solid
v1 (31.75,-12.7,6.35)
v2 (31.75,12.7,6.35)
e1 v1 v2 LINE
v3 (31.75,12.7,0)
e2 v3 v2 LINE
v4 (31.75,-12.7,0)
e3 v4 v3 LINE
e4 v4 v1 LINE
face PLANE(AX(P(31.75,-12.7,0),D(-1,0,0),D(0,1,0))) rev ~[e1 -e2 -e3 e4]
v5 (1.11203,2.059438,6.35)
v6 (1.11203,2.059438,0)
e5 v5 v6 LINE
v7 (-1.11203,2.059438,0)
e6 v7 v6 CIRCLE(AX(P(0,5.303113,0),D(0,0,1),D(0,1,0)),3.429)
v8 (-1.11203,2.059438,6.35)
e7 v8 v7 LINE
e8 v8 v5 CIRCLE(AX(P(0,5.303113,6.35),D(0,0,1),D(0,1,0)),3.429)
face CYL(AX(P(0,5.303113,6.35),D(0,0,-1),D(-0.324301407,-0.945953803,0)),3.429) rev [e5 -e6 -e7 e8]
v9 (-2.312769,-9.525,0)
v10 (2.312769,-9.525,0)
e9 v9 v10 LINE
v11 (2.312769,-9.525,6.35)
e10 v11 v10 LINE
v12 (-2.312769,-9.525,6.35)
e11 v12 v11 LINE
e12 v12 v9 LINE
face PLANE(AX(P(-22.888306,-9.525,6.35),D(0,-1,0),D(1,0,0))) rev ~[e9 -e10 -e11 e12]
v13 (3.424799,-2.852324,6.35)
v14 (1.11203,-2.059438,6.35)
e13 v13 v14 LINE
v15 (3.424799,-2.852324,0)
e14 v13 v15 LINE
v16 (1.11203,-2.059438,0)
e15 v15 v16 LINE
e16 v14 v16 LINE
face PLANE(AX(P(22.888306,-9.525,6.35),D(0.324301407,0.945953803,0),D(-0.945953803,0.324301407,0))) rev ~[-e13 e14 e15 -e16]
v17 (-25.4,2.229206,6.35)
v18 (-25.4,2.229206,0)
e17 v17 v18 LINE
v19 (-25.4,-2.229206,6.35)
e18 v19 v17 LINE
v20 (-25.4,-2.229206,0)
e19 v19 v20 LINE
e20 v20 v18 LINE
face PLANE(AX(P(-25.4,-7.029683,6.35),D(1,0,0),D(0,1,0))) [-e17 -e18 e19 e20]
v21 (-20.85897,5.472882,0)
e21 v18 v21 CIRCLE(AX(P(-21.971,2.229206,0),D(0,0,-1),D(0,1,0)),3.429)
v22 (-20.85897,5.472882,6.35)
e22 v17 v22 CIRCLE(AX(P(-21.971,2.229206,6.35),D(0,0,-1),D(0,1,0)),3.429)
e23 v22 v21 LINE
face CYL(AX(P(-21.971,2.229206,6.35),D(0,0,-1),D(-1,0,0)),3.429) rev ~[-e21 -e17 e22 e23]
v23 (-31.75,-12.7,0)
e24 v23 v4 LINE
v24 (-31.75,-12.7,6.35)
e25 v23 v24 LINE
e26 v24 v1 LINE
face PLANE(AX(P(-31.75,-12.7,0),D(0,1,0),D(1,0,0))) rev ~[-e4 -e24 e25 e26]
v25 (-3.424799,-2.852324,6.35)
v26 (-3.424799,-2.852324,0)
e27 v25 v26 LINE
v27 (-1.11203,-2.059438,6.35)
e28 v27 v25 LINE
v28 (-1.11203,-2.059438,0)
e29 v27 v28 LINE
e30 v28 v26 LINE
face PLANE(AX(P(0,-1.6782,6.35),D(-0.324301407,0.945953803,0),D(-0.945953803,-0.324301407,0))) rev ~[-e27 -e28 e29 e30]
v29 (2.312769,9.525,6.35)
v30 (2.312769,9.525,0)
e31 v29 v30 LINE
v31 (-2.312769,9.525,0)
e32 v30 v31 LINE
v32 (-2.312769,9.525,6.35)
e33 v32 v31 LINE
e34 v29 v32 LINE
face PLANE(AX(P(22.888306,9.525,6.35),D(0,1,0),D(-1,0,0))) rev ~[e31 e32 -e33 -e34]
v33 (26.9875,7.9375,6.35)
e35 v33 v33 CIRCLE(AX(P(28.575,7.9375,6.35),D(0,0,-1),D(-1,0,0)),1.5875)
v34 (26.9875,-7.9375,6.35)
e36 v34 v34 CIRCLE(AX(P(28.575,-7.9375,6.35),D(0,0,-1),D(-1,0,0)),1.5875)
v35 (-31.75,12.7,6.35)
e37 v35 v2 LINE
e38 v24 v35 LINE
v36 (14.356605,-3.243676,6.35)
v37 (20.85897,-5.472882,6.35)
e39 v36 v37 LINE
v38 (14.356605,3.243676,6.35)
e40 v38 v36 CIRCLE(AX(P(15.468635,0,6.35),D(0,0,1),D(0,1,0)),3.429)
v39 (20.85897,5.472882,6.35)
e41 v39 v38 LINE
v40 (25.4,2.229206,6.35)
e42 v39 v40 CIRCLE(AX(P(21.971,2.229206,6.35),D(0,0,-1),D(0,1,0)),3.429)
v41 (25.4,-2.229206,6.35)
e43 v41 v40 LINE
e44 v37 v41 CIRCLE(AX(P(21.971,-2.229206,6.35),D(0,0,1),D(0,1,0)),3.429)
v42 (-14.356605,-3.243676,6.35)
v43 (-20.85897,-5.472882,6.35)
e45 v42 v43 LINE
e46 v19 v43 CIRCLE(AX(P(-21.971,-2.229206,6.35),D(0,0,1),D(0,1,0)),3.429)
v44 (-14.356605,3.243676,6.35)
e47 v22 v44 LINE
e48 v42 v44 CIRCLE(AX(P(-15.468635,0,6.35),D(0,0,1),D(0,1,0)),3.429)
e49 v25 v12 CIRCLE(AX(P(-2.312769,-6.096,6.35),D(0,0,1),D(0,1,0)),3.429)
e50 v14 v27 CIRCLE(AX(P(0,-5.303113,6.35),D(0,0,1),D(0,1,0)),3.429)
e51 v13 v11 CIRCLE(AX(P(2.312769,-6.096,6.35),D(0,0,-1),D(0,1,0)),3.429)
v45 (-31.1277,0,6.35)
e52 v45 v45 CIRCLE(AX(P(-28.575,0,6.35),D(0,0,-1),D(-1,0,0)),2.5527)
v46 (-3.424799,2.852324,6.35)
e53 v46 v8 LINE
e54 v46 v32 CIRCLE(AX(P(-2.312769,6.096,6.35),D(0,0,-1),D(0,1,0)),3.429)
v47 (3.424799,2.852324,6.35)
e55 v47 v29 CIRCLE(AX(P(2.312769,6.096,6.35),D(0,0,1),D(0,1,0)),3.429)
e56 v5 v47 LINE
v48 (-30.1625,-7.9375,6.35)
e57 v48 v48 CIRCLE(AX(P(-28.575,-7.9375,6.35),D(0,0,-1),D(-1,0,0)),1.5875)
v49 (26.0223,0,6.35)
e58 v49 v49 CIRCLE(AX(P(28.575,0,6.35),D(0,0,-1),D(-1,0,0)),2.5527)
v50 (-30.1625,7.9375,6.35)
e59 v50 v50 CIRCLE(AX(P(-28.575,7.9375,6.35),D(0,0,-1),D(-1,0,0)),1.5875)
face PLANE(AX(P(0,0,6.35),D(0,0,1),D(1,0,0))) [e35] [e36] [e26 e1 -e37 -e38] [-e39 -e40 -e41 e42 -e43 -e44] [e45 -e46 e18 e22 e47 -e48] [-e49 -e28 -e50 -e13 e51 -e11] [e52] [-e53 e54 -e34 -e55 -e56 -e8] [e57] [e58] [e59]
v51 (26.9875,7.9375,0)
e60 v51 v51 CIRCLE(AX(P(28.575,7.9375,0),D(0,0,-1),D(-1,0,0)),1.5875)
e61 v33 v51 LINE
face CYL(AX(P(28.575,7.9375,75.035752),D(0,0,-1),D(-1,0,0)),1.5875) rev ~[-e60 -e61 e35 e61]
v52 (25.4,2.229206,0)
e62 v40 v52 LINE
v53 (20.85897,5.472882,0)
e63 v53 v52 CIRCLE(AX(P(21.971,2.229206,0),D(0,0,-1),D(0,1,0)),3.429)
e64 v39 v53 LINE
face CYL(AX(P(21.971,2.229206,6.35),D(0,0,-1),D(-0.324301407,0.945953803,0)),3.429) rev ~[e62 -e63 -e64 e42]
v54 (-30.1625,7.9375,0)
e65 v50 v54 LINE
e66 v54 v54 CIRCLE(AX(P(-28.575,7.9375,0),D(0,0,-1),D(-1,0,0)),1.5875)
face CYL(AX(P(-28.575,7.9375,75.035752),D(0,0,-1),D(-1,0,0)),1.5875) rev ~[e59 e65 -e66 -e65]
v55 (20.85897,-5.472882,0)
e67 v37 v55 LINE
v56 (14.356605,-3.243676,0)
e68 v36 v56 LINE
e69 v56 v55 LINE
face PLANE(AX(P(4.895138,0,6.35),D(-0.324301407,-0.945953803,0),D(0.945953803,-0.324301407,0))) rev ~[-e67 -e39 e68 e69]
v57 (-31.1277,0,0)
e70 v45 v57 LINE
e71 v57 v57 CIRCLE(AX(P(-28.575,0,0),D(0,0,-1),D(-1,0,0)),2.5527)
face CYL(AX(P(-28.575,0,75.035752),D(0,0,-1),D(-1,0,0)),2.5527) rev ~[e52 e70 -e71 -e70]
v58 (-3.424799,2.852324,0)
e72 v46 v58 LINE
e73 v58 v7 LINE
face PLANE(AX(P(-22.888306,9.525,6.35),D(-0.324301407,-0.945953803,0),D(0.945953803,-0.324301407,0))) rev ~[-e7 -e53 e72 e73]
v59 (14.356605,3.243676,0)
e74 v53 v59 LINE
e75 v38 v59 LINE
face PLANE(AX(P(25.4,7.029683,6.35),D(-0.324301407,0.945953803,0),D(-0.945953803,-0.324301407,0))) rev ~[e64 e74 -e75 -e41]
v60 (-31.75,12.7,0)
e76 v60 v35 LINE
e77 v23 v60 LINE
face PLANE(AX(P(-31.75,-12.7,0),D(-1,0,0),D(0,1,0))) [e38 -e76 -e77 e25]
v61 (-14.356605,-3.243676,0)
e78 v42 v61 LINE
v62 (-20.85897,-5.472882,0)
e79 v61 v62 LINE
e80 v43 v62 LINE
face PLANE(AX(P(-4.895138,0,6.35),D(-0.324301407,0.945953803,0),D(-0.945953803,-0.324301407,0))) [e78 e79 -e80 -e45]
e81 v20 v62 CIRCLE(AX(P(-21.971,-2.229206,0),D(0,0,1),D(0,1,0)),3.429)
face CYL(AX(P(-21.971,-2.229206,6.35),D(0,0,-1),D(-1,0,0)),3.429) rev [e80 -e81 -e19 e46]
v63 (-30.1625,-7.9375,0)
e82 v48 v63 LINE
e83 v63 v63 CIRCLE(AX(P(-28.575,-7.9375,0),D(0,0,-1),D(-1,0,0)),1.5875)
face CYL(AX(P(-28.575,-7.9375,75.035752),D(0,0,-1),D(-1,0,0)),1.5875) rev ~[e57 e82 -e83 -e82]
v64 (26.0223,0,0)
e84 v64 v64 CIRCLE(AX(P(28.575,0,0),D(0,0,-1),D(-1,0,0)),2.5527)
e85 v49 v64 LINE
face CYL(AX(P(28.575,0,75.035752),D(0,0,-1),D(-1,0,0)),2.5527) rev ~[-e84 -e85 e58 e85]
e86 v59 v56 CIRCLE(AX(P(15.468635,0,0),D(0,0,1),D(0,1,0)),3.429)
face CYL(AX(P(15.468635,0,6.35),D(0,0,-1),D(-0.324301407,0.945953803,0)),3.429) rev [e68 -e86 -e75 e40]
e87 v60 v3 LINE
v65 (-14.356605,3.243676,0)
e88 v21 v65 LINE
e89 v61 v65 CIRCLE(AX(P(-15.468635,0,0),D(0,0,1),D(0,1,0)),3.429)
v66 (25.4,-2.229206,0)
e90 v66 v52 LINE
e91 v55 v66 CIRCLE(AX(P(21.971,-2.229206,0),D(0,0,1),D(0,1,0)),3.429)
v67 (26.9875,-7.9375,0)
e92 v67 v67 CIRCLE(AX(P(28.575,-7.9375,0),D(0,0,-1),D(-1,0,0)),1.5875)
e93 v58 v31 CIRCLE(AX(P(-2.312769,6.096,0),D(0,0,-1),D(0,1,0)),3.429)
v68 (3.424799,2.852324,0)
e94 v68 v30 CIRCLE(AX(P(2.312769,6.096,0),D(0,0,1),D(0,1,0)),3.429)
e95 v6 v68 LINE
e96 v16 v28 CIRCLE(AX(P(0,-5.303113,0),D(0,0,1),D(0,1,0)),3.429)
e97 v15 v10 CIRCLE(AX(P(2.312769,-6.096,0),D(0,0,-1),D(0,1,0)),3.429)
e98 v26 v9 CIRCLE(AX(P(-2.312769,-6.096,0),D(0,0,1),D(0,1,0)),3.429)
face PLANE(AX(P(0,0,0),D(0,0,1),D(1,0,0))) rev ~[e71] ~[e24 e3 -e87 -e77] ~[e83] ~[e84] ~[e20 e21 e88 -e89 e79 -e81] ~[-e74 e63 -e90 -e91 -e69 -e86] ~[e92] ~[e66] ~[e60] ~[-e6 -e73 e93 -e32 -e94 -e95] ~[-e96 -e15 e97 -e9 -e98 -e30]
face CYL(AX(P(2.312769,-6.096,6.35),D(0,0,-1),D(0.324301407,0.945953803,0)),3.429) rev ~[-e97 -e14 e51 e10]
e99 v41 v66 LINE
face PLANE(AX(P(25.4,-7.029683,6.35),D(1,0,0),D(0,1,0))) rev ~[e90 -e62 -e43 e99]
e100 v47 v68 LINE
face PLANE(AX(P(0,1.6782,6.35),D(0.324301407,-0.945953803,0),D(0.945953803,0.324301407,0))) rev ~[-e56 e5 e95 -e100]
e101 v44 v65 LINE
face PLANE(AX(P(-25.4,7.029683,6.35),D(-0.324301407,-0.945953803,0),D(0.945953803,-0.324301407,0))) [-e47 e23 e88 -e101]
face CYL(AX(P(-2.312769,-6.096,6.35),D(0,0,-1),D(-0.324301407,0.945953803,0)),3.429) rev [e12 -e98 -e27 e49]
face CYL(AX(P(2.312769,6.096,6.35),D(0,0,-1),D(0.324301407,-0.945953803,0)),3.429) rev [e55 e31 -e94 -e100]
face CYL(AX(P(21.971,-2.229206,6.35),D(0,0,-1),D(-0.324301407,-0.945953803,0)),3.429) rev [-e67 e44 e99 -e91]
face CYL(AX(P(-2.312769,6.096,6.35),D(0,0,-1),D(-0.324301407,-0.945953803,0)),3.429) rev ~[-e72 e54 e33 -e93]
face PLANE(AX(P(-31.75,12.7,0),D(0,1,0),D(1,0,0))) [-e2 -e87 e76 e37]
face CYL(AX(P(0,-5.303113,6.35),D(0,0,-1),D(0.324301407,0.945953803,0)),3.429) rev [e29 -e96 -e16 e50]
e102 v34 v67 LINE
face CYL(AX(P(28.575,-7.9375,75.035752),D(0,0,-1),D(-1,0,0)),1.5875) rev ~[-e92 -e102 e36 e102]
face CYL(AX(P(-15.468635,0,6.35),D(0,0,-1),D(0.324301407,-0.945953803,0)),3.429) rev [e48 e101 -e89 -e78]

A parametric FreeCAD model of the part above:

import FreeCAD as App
import Part
import Sketcher
from FreeCAD import Vector
Q = App.Units.Quantity


def edges_at(feature, points):
    """Names of the edges that pass closest to the given points."""
    edges = feature.Shape.Edges
    near = lambda p: min(range(len(edges)), key=lambda i: edges[i].distToShape(Part.Vertex(*p))[0])
    return sorted({f"Edge{near(p) + 1}" for p in points})

doc = App.newDocument("Part")
body = doc.addObject("PartDesign::Body", "Body")

# Sketch on XY plane
sketch1 = doc.addObject("Sketcher::SketchObject", "Sketch")
body.addObject(sketch1)
sketch1.AttachmentSupport = (doc.XY_Plane, [""])
sketch1.MapMode = "FlatFace"
sketch1.addGeometry(Part.LineSegment(Vector(-32, 13, 0), Vector(-32, -13, 0)), False)
sketch1.addGeometry(Part.LineSegment(Vector(-32, -13, 0), Vector(32, -13, 0)), False)
sketch1.addGeometry(Part.LineSegment(Vector(32, -13, 0), Vector(32, 13, 0)), False)
sketch1.addGeometry(Part.LineSegment(Vector(32, 13, 0), Vector(-32, 13, 0)), False)
sketch1.addConstraint(Sketcher.Constraint("Coincident", 0, 2, 1, 1))
sketch1.addConstraint(Sketcher.Constraint("Coincident", 1, 2, 2, 1))
sketch1.addConstraint(Sketcher.Constraint("Coincident", 2, 2, 3, 1))
sketch1.addConstraint(Sketcher.Constraint("Coincident", 3, 2, 0, 1))
sketch1.addConstraint(Sketcher.Constraint("Vertical", 0))
sketch1.addConstraint(Sketcher.Constraint("Horizontal", 1))
sketch1.addConstraint(Sketcher.Constraint("Vertical", 2))
sketch1.addConstraint(Sketcher.Constraint("Horizontal", 3))
sketch1.addConstraint(Sketcher.Constraint("Symmetric", 0, 2, 2, 2, -1, 1))
sketch1.addConstraint(Sketcher.Constraint("DistanceY", 0, 2, 0, 1, Q("1 in")))
sketch1.addConstraint(Sketcher.Constraint("DistanceX", 1, 1, 1, 2, Q("2.5 in")))
pad1 = doc.addObject("PartDesign::Pad", "Pad")
body.addObject(pad1)
pad1.Profile = sketch1
pad1.Length = Q("0.25 in")

# Sketch on XY plane
sketch2 = doc.addObject("Sketcher::SketchObject", "Sketch001")
body.addObject(sketch2)
sketch2.AttachmentSupport = (doc.XY_Plane, [""])
sketch2.MapMode = "FlatFace"
sketch2.AttachmentOffset = App.Placement(Vector(0, 0, 0.25 * 25.4), App.Rotation())
sketch2.addGeometry(Part.Circle(Vector(-28.6, 0, 0), Vector(0, 0, 1), 2.6), False)
sketch2.addGeometry(Part.Circle(Vector(28.6, 0, 0), Vector(0, 0, 1), 2.6), False)
sketch2.addConstraint(Sketcher.Constraint("Equal", 0, 1))
sketch2.addConstraint(Sketcher.Constraint("Symmetric", 0, 3, 1, 3, -1, 1))
sketch2.addConstraint(Sketcher.Constraint("PointOnObject", 0, 3, -1))
sketch2.addConstraint(Sketcher.Constraint("Diameter", 0, Q("0.201 in")))
sketch2.addConstraint(Sketcher.Constraint("DistanceX", 0, 3, 1, 3, Q("2.25 in")))
doc.recompute()
hole = doc.addObject("PartDesign::Hole", "Hole")
body.addObject(hole)
hole.Profile = sketch2
hole.ThreadType = "None"
hole.Diameter = Q("0.201 in")
hole.DepthType = "ThroughAll"

# Sketch on XY plane
sketch3 = doc.addObject("Sketcher::SketchObject", "Sketch002")
body.addObject(sketch3)
sketch3.AttachmentSupport = (doc.XY_Plane, [""])
sketch3.MapMode = "FlatFace"
sketch3.AttachmentOffset = App.Placement(Vector(0, 0, 0.25 * 25.4), App.Rotation())
sketch3.addGeometry(Part.Circle(Vector(-28.6, 7.9, 0), Vector(0, 0, 1), 1.6), False)
sketch3.addGeometry(Part.Circle(Vector(-28.6, -7.9, 0), Vector(0, 0, 1), 1.6), False)
sketch3.addGeometry(Part.Circle(Vector(28.6, 7.9, 0), Vector(0, 0, 1), 1.6), False)
sketch3.addGeometry(Part.Circle(Vector(28.6, -7.9, 0), Vector(0, 0, 1), 1.6), False)
sketch3.addConstraint(Sketcher.Constraint("Equal", 0, 1))
sketch3.addConstraint(Sketcher.Constraint("Equal", 1, 2))
sketch3.addConstraint(Sketcher.Constraint("Equal", 2, 3))
sketch3.addConstraint(Sketcher.Constraint("Symmetric", 1, 3, 2, 3, -1, 1))
sketch3.addConstraint(Sketcher.Constraint("Symmetric", 0, 3, 3, 3, -1, 1))
sketch3.addConstraint(Sketcher.Constraint("Symmetric", 0, 3, 2, 3, -2))
sketch3.addConstraint(Sketcher.Constraint("Diameter", 0, Q("0.125 in")))
sketch3.addConstraint(Sketcher.Constraint("DistanceX", 0, 3, 2, 3, Q("2.25 in")))
sketch3.addConstraint(Sketcher.Constraint("DistanceY", -1, 1, 0, 3, Q("0.3125 in")))
doc.recompute()
hole2 = doc.addObject("PartDesign::Hole", "Hole001")
body.addObject(hole2)
hole2.Profile = sketch3
hole2.ThreadType = "None"
hole2.Diameter = Q("0.125 in")
hole2.DepthType = "ThroughAll"

# Sketch on XY plane
sketch4 = doc.addObject("Sketcher::SketchObject", "Sketch003")
body.addObject(sketch4)
sketch4.AttachmentSupport = (doc.XY_Plane, [""])
sketch4.MapMode = "FlatFace"
sketch4.AttachmentOffset = App.Placement(Vector(0, 0, 0.25 * 25.4), App.Rotation())
sketch4.addGeometry(Part.LineSegment(Vector(-5, 0, 0), Vector(-25, 7, 0)), False)
sketch4.addGeometry(Part.LineSegment(Vector(-25, 7, 0), Vector(-25, -7, 0)), False)
sketch4.addGeometry(Part.LineSegment(Vector(-25, -7, 0), Vector(-5, 0, 0)), False)
sketch4.addGeometry(Part.LineSegment(Vector(-23, 10, 0), Vector(0, 2, 0)), False)
sketch4.addGeometry(Part.LineSegment(Vector(0, 2, 0), Vector(23, 10, 0)), False)
sketch4.addGeometry(Part.LineSegment(Vector(23, 10, 0), Vector(-23, 10, 0)), False)
sketch4.addGeometry(Part.LineSegment(Vector(25, 7, 0), Vector(5, 0, 0)), False)
sketch4.addGeometry(Part.LineSegment(Vector(5, 0, 0), Vector(25, -7, 0)), False)
sketch4.addGeometry(Part.LineSegment(Vector(25, -7, 0), Vector(25, 7, 0)), False)
sketch4.addGeometry(Part.LineSegment(Vector(23, -10, 0), Vector(0, -2, 0)), False)
sketch4.addGeometry(Part.LineSegment(Vector(0, -2, 0), Vector(-23, -10, 0)), False)
sketch4.addGeometry(Part.LineSegment(Vector(-23, -10, 0), Vector(23, -10, 0)), False)
sketch4.addConstraint(Sketcher.Constraint("Coincident", 0, 2, 1, 1))
sketch4.addConstraint(Sketcher.Constraint("Coincident", 1, 2, 2, 1))
sketch4.addConstraint(Sketcher.Constraint("Coincident", 2, 2, 0, 1))
sketch4.addConstraint(Sketcher.Constraint("Coincident", 3, 2, 4, 1))
sketch4.addConstraint(Sketcher.Constraint("Coincident", 4, 2, 5, 1))
sketch4.addConstraint(Sketcher.Constraint("Coincident", 5, 2, 3, 1))
sketch4.addConstraint(Sketcher.Constraint("Coincident", 6, 2, 7, 1))
sketch4.addConstraint(Sketcher.Constraint("Coincident", 7, 2, 8, 1))
sketch4.addConstraint(Sketcher.Constraint("Coincident", 8, 2, 6, 1))
sketch4.addConstraint(Sketcher.Constraint("Coincident", 9, 2, 10, 1))
sketch4.addConstraint(Sketcher.Constraint("Coincident", 10, 2, 11, 1))
sketch4.addConstraint(Sketcher.Constraint("Coincident", 11, 2, 9, 1))
sketch4.addConstraint(Sketcher.Constraint("Vertical", 1))
sketch4.addConstraint(Sketcher.Constraint("Horizontal", 5))
sketch4.addConstraint(Sketcher.Constraint("Vertical", 8))
sketch4.addConstraint(Sketcher.Constraint("Horizontal", 11))
sketch4.addConstraint(Sketcher.Constraint("Symmetric", 2, 2, 6, 2, -1, 1))
sketch4.addConstraint(Sketcher.Constraint("Symmetric", 0, 2, 7, 2, -1, 1))
sketch4.addConstraint(Sketcher.Constraint("Symmetric", 3, 2, 9, 2, -1, 1))
sketch4.addConstraint(Sketcher.Constraint("Symmetric", 4, 2, 10, 2, -1, 1))
sketch4.addConstraint(Sketcher.Constraint("PointOnObject", 2, 2, -1))
sketch4.addConstraint(Sketcher.Constraint("PointOnObject", 3, 2, -2))
sketch4.addConstraint(Sketcher.Constraint("Parallel", 0, 3))
sketch4.addConstraint(Sketcher.Constraint("Parallel", 2, 4))
sketch4.addConstraint(Sketcher.Constraint("Parallel", 4, 6))
sketch4.addConstraint(Sketcher.Constraint("Parallel", 7, 9))
sketch4.addConstraint(Sketcher.Constraint("Horizontal", 1, 2, 7, 2))
sketch4.addConstraint(Sketcher.Constraint("DistanceX", 0, 2, -1, 1, Q("1 in")))
sketch4.addConstraint(Sketcher.Constraint("DistanceY", 10, 2, 5, 2, Q("0.75 in")))
sketch4.addConstraint(Sketcher.Constraint("DistanceY", -1, 1, 3, 2, 1.6782))
sketch4.addConstraint(Sketcher.Constraint("Distance", 0, 21.676389))
sketch4.addConstraint(Sketcher.Constraint("Distance", 3, 24.196009))
pocket1 = doc.addObject("PartDesign::Pocket", "Pocket")
body.addObject(pocket1)
pocket1.Profile = sketch4
pocket1.Type = "ThroughAll"
doc.recompute()

fillet = doc.addObject("PartDesign::Fillet", "Fillet")
body.addObject(fillet)
fillet.Base = (pocket1, edges_at(pocket1, [
    (-25.4, -7.03, 3.175),
    (-25.4, 7.03, 3.175),
    (-4.895, 0, 3.175),
    (25.4, 7.03, 3.175),
    (25.4, -7.03, 3.175),
    (4.895, 0, 3.175),
    (22.888, -9.525, 3.175),
    (-22.888, -9.525, 3.175),
    (0, -1.678, 3.175),
    (-22.888, 9.525, 3.175),
    (22.888, 9.525, 3.175),
    (0, 1.678, 3.175),
]))
fillet.Radius = Q("0.135 in")

doc.recompute()
